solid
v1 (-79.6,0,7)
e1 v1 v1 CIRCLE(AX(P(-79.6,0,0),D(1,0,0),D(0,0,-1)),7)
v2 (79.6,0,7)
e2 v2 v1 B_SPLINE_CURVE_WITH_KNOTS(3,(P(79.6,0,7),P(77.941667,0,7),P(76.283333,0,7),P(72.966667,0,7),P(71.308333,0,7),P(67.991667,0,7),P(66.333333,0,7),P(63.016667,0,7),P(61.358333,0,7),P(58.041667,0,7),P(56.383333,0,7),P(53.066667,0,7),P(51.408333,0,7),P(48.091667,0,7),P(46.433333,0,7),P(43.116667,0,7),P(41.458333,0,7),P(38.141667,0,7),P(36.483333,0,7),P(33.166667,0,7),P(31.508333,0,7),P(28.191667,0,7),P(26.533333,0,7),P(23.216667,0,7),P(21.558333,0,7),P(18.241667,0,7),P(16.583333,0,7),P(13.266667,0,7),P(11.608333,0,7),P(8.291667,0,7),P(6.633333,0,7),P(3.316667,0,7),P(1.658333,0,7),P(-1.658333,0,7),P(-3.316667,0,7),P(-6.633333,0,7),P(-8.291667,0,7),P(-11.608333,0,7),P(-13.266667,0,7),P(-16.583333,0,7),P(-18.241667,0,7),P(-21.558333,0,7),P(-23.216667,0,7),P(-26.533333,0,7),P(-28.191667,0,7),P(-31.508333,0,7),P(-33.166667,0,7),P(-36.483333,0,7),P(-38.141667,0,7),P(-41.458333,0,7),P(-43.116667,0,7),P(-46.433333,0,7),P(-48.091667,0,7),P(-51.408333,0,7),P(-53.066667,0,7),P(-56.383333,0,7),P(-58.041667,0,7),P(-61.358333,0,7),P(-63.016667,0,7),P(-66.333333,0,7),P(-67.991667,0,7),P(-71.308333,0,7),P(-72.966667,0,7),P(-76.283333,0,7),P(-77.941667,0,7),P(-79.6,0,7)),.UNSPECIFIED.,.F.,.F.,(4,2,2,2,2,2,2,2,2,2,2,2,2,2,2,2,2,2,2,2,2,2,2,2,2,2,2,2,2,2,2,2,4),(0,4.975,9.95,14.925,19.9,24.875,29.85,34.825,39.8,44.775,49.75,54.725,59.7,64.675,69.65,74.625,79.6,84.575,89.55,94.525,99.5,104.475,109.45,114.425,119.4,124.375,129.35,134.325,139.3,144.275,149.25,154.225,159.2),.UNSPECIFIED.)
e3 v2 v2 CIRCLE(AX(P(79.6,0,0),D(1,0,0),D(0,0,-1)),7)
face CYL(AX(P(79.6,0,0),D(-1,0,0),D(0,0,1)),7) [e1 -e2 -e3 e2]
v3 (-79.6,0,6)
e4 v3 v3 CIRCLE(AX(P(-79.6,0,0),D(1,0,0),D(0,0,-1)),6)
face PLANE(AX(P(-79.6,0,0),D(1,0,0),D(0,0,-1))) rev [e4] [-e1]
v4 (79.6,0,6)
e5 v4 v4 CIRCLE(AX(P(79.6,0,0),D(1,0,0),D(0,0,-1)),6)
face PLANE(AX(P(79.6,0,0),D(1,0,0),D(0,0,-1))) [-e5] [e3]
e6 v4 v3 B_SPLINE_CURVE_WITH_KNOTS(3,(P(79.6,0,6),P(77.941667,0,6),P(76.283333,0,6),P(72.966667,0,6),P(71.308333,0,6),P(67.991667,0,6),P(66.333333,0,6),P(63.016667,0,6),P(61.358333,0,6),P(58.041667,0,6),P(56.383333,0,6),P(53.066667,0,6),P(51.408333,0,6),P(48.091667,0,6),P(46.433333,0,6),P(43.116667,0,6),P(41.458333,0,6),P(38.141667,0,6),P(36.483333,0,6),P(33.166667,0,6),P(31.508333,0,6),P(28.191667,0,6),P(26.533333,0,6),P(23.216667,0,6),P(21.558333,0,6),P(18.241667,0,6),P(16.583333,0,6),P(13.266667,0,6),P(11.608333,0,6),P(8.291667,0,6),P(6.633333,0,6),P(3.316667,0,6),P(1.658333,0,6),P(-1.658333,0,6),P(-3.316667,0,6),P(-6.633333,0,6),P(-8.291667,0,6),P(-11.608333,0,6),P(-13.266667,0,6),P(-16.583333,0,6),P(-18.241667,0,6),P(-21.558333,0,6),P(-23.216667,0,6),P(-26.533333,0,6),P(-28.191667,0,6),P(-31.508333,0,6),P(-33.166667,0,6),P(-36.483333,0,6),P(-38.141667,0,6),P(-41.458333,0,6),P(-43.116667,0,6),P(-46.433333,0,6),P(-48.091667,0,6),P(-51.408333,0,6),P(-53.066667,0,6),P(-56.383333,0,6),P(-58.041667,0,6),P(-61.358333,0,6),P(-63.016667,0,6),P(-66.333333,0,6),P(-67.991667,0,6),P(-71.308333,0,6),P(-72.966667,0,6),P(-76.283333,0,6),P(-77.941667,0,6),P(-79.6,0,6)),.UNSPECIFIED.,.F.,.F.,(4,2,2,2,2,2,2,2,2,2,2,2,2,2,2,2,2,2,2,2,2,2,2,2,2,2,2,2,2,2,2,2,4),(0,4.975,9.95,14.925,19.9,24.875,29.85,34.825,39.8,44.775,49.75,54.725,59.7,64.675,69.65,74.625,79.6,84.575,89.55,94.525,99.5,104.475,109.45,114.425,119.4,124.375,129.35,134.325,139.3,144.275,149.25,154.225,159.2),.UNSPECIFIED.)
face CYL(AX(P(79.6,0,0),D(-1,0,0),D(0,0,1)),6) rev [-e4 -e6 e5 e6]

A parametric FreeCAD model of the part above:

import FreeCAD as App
import Part
import Sketcher

V = App.Vector

doc = App.newDocument("Part")
body = doc.addObject("PartDesign::Body", "Body")

# Sketch on YZ plane
sketch1 = doc.addObject("Sketcher::SketchObject", "Sketch")
body.addObject(sketch1)
sketch1.AttachmentSupport = (doc.YZ_Plane, [""])
sketch1.MapMode = "FlatFace"
sketch1.addGeometry(Part.Circle(V(0, 0, 0), V(0, 0, 1), 7), False)
sketch1.addGeometry(Part.Circle(V(0, 0, 0), V(0, 0, 1), 6), False)
sketch1.addConstraint(Sketcher.Constraint("Coincident", 0, 3, -1, 1))
sketch1.addConstraint(Sketcher.Constraint("Coincident", 1, 3, -1, 1))
sketch1.addConstraint(Sketcher.Constraint("Diameter", 0, 14.0))
sketch1.addConstraint(Sketcher.Constraint("Diameter", 1, 12.0))
pad1 = doc.addObject("PartDesign::Pad", "Pad")
body.addObject(pad1)
pad1.Profile = sketch1
pad1.Length = 159.2
pad1.Midplane = True

doc.recompute()
